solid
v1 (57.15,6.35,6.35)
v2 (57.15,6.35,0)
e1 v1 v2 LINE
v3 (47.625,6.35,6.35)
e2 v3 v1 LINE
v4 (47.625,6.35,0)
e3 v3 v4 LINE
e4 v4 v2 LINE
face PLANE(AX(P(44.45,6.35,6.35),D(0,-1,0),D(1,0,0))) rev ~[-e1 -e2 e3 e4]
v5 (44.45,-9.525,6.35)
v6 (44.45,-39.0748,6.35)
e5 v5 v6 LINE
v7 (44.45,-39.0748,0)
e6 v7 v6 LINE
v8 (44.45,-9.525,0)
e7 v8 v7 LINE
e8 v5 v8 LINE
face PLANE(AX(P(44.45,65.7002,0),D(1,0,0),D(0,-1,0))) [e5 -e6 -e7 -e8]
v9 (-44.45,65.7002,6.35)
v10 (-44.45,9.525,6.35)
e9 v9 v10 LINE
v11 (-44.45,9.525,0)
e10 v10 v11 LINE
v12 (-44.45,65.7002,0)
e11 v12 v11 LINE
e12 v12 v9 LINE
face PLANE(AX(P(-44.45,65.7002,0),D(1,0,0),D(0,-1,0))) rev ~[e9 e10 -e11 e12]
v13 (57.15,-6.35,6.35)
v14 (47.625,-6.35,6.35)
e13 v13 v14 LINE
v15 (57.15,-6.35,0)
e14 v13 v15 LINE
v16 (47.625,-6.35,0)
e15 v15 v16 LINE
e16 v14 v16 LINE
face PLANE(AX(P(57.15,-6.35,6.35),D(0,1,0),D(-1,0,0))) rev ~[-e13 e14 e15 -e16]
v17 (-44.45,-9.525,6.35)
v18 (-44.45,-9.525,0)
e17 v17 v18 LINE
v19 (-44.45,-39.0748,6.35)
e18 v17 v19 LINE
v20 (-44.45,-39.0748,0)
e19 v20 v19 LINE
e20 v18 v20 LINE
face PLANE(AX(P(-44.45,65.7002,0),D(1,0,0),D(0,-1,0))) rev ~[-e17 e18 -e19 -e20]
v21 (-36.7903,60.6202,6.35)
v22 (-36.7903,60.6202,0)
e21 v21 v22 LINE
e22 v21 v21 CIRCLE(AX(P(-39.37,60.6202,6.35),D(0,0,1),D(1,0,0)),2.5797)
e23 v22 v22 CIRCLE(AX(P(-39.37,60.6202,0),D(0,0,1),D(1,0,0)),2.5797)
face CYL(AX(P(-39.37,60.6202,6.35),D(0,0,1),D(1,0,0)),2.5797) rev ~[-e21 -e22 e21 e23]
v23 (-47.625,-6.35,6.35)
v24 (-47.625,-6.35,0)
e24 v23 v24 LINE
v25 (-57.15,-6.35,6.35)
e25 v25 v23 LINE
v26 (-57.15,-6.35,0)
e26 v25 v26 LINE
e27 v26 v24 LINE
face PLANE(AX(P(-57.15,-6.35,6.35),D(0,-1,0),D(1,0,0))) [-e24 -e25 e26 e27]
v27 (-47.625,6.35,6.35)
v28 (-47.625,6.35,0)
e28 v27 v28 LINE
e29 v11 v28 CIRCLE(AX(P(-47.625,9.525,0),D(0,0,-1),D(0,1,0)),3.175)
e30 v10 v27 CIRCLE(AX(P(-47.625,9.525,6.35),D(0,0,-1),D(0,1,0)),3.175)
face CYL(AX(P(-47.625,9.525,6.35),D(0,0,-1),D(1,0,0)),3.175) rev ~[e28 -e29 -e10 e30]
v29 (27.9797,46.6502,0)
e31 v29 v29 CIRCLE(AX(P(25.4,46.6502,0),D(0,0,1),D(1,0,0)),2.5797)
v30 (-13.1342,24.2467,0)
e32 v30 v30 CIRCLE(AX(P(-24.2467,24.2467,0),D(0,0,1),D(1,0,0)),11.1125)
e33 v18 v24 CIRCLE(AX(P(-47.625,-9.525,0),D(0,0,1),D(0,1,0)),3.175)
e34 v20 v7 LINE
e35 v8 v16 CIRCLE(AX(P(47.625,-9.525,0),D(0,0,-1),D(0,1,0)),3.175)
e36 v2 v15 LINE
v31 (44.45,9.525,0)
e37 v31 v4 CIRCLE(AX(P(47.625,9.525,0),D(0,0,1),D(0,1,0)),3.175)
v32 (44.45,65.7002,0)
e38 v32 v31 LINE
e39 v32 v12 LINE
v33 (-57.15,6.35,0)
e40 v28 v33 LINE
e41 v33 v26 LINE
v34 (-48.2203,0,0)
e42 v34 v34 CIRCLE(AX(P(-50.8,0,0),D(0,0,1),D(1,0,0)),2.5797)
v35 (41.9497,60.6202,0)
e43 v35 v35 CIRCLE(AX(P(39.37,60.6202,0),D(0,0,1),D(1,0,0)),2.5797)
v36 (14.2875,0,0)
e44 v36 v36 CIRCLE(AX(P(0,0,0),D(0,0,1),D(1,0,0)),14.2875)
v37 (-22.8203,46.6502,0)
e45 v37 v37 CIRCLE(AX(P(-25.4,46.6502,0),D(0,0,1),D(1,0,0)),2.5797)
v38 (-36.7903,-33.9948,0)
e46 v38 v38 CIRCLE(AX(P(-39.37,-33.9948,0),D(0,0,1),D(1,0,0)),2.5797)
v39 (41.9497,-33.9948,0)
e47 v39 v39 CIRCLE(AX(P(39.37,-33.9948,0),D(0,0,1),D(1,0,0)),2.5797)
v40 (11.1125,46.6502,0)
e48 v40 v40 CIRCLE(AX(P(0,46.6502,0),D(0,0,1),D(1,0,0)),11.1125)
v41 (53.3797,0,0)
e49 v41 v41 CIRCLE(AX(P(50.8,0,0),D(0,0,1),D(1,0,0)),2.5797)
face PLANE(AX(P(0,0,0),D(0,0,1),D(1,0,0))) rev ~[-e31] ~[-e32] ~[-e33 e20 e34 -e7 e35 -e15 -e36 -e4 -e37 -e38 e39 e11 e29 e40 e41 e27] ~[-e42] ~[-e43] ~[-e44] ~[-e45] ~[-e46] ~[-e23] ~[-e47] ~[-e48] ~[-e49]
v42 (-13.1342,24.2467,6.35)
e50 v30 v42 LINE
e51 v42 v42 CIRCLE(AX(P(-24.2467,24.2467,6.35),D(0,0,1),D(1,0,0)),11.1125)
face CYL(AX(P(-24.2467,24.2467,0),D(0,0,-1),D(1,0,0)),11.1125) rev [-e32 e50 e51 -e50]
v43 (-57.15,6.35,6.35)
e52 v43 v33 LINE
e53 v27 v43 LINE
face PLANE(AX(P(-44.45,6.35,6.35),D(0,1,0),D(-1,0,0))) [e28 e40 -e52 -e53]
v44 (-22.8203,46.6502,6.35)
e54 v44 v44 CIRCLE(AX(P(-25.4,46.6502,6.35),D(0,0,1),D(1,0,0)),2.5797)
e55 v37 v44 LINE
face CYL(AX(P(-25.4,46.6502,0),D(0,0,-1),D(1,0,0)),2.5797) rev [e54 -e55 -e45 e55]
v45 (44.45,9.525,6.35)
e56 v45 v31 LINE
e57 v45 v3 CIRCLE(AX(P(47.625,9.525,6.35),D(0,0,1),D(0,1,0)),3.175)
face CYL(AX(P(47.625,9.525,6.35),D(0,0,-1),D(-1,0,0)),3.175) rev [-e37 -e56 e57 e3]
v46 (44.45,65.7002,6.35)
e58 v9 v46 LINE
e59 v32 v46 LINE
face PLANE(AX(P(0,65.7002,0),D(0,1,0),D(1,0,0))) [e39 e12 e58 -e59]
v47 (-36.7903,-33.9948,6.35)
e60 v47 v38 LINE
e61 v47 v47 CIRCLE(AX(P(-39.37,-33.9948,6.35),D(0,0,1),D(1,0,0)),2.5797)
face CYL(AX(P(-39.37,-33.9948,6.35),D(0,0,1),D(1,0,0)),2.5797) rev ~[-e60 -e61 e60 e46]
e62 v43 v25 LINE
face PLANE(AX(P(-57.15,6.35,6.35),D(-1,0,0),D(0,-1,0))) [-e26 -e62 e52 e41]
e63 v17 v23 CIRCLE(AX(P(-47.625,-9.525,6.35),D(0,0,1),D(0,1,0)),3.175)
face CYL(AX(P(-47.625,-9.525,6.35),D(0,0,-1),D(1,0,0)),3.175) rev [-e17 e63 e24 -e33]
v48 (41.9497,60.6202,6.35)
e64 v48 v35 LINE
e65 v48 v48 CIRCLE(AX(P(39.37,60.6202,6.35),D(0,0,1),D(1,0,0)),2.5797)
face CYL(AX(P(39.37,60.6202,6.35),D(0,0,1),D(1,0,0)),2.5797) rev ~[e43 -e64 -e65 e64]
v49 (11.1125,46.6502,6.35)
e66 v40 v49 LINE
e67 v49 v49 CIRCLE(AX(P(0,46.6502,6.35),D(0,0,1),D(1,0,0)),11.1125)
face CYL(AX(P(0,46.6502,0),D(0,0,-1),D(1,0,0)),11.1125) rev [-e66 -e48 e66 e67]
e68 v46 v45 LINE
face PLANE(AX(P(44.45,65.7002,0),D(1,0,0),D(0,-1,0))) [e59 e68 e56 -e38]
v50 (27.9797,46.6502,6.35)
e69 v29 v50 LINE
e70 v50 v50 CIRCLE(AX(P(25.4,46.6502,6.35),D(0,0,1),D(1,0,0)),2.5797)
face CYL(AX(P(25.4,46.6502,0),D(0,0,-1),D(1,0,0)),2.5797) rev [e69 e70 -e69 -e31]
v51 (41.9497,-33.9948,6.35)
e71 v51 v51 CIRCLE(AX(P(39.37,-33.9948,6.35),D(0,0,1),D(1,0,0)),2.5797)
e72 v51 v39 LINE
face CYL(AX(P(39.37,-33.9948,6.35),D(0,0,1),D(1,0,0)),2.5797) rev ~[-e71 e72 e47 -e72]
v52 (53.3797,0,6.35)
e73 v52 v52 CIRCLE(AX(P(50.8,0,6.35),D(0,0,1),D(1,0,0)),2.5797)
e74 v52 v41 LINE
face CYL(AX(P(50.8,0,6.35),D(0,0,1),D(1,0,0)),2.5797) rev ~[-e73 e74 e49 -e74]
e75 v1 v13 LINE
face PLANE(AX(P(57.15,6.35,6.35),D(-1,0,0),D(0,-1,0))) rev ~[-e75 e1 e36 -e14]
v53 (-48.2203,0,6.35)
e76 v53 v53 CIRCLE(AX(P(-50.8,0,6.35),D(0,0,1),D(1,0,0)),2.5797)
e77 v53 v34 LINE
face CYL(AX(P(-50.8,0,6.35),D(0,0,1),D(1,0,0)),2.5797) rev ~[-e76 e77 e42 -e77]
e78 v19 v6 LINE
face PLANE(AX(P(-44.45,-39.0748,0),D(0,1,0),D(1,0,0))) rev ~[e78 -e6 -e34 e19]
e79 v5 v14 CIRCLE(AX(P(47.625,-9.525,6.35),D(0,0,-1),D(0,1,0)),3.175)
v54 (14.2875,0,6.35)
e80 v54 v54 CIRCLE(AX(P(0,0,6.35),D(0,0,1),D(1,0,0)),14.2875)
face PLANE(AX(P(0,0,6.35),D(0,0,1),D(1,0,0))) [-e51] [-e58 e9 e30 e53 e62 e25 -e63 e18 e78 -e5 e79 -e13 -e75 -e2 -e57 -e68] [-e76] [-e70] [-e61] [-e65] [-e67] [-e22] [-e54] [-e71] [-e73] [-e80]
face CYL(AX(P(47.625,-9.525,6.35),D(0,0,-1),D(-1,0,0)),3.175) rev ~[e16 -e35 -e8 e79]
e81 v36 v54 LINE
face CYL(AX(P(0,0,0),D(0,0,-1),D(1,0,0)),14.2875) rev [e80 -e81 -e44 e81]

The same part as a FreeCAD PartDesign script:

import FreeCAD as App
import Part
import Sketcher

V = App.Vector
Q = App.Units.Quantity


def edges_at(feature, points):
    """Names of the edges that pass closest to the given points."""
    edges = feature.Shape.Edges
    near = lambda p: min(range(len(edges)), key=lambda i: edges[i].distToShape(Part.Vertex(*p))[0])
    return sorted({f"Edge{near(p) + 1}" for p in points})


def add_polygon(sketch, points):
    """Adds a closed chain of lines whose ends are joined by coincident constraints."""
    first, n = sketch.GeometryCount, len(points)
    for a, b in zip(points, points[1:] + points[:1]):
        sketch.addGeometry(Part.LineSegment(App.Vector(*a, 0), App.Vector(*b, 0)), False)
    for i in range(n):
        sketch.addConstraint(Sketcher.Constraint("Coincident", first + i, 2, first + (i + 1) % n, 1))

doc = App.newDocument("Part")
body = doc.addObject("PartDesign::Body", "Body")

# Sketch on XY plane
sketch1 = body.newObject("Sketcher::SketchObject", "Sketch")
sketch1.AttachmentSupport = (doc.getObject("XY_Plane"), [""])
sketch1.MapMode = "FlatFace"
add_polygon(sketch1, [(44.5, 65.7), (-44.5, 65.7), (-44.5, -39.1), (44.5, -39.1)])  # lines 0-3
sketch1.addGeometry(Part.Circle(V(0, 0, 0), V(0, 0, 1), 14.3), False)  # 4
sketch1.addGeometry(Part.Circle(V(-24.2, 24.2, 0), V(0, 0, 1), 11.1), False)  # 5
sketch1.addGeometry(Part.Circle(V(-25.4, 46.7, 0), V(0, 0, 1), 2.6), False)  # 6
sketch1.addGeometry(Part.Circle(V(0, 46.7, 0), V(0, 0, 1), 11.1), False)  # 7
sketch1.addGeometry(Part.Circle(V(25.4, 46.7, 0), V(0, 0, 1), 2.6), False)  # 8
sketch1.addConstraint([
    Sketcher.Constraint("Horizontal", 0),
    Sketcher.Constraint("Vertical", 1),
    Sketcher.Constraint("Horizontal", 2),
    Sketcher.Constraint("Vertical", 3),
    Sketcher.Constraint("Coincident", 4, 3, -1, 1),
    Sketcher.Constraint("Equal", 5, 7),
    Sketcher.Constraint("Equal", 6, 8),
    Sketcher.Constraint("Symmetric", 6, 3, 8, 3, -2),
    Sketcher.Constraint("PointOnObject", 7, 3, -2),
    Sketcher.Constraint("Horizontal", 6, 3, 7, 3),
    Sketcher.Constraint("Diameter", 4, Q("1.125 in")),
    Sketcher.Constraint("Diameter", 5, Q("0.875 in")),
    Sketcher.Constraint("Diameter", 6, Q("0.203126 in")),
    Sketcher.Constraint("DistanceX", 6, 3, -1, 1, Q("1 in")),
    Sketcher.Constraint("DistanceY", 1, 2, 1, 1, Q("4.125 in")),
    Sketcher.Constraint("DistanceX", 0, 2, -1, 1, Q("1.75 in")),
    Sketcher.Constraint("DistanceX", -1, 1, 2, 2, Q("1.75 in")),
    Sketcher.Constraint("DistanceY", 6, 3, 0, 2, Q("0.75 in")),
    Sketcher.Constraint("DistanceY", 5, 3, 6, 3, Q("22.4035 mm")),
    Sketcher.Constraint("DistanceX", 5, 3, -1, 1, Q("0.9546 in")),
    Sketcher.Constraint("DistanceY", -1, 1, 5, 3, Q("0.9546 in")),
])
pad1 = body.newObject("PartDesign::Pad", "Pad")
pad1.Profile = sketch1
pad1.Length = Q("0.25 in")

# Sketch on XY plane
sketch2 = body.newObject("Sketcher::SketchObject", "Sketch001")
sketch2.AttachmentSupport = (doc.getObject("XY_Plane"), [""])
sketch2.MapMode = "FlatFace"
sketch2.AttachmentOffset = App.Placement(V(0, 0, 0.25 * 25.4), App.Rotation())
sketch2.addGeometry([
    Part.Circle(V(-39.4, 60.6, 0), V(0, 0, 1), 2.6),
    Part.Circle(V(39.4, 60.6, 0), V(0, 0, 1), 2.6),
    Part.Circle(V(-39.4, -34, 0), V(0, 0, 1), 2.6),
    Part.Circle(V(39.4, -34, 0), V(0, 0, 1), 2.6),
], False)
sketch2.addConstraint([
    Sketcher.Constraint("Equal", 0, 1),
    Sketcher.Constraint("Equal", 1, 2),
    Sketcher.Constraint("Equal", 2, 3),
    Sketcher.Constraint("Symmetric", 0, 3, 1, 3, -2),
    Sketcher.Constraint("Symmetric", 2, 3, 3, 3, -2),
    Sketcher.Constraint("Vertical", 0, 3, 2, 3),
    Sketcher.Constraint("Diameter", 0, Q("0.203126 in")),
    Sketcher.Constraint("DistanceX", 0, 3, 1, 3, Q("3.1 in")),
    Sketcher.Constraint("DistanceY", 2, 3, 0, 3, Q("3.725 in")),
    Sketcher.Constraint("DistanceY", -1, 1, 0, 3, Q("60.6202 mm")),
])
pocket1 = body.newObject("PartDesign::Pocket", "Pocket")
pocket1.Profile = sketch2
pocket1.Length = Q("1 in")

# Sketch on XY plane
sketch3 = body.newObject("Sketcher::SketchObject", "Sketch002")
sketch3.AttachmentSupport = (doc.getObject("XY_Plane"), [""])
sketch3.MapMode = "FlatFace"
sketch3.AttachmentOffset = App.Placement(V(0, 0, 0.25 * 25.4), App.Rotation())
add_polygon(sketch3, [(57.1, 6.3), (44.5, 6.3), (44.5, -6.3), (57.1, -6.3)])  # lines 0-3
sketch3.addGeometry(Part.Circle(V(50.8, 0, 0), V(0, 0, 1), 2.6), False)  # 4
add_polygon(sketch3, [(-44.5, -6.3), (-44.5, 6.3), (-57.1, 6.3), (-57.1, -6.3)])  # lines 5-8
sketch3.addGeometry(Part.Circle(V(-50.8, 0, 0), V(0, 0, 1), 2.6), False)  # 9
sketch3.addConstraint([
    Sketcher.Constraint("Horizontal", 0),
    Sketcher.Constraint("Vertical", 1),
    Sketcher.Constraint("Horizontal", 2),
    Sketcher.Constraint("Vertical", 3),
    Sketcher.Constraint("Vertical", 5),
    Sketcher.Constraint("Horizontal", 6),
    Sketcher.Constraint("Vertical", 7),
    Sketcher.Constraint("Horizontal", 8),
    Sketcher.Constraint("Equal", 4, 9),
    Sketcher.Constraint("Symmetric", 4, 3, 9, 3, -1, 1),
    Sketcher.Constraint("Symmetric", 1, 2, 5, 2, -1, 1),
    Sketcher.Constraint("Symmetric", 3, 2, 7, 2, -1, 1),
    Sketcher.Constraint("PointOnObject", 4, 3, -1),
    Sketcher.Constraint("Horizontal", 3, 2, 5, 2),
    Sketcher.Constraint("Equal", 8, 1),
    Sketcher.Constraint("Diameter", 4, Q("0.203126 in")),
    Sketcher.Constraint("DistanceX", 0, 2, 0, 1, Q("0.5 in")),
    Sketcher.Constraint("DistanceX", 0, 2, 4, 3, Q("0.25 in")),
    Sketcher.Constraint("DistanceX", -1, 1, 4, 3, Q("2 in")),
])
pad2 = body.newObject("PartDesign::Pad", "Pad001")
pad2.Profile = sketch3
pad2.Length = Q("0.25 in")
pad2.Reversed = True
doc.recompute()

fillet = body.newObject("PartDesign::Fillet", "Fillet")
fillet.Base = (pad2, edges_at(pad2, [
    (44.45, 6.35, 3.175),
    (44.45, -6.35, 3.175),
    (-44.45, -6.35, 3.175),
    (-44.45, 6.35, 3.175),
]))
fillet.Radius = Q("0.125 in")

doc.recompute()
